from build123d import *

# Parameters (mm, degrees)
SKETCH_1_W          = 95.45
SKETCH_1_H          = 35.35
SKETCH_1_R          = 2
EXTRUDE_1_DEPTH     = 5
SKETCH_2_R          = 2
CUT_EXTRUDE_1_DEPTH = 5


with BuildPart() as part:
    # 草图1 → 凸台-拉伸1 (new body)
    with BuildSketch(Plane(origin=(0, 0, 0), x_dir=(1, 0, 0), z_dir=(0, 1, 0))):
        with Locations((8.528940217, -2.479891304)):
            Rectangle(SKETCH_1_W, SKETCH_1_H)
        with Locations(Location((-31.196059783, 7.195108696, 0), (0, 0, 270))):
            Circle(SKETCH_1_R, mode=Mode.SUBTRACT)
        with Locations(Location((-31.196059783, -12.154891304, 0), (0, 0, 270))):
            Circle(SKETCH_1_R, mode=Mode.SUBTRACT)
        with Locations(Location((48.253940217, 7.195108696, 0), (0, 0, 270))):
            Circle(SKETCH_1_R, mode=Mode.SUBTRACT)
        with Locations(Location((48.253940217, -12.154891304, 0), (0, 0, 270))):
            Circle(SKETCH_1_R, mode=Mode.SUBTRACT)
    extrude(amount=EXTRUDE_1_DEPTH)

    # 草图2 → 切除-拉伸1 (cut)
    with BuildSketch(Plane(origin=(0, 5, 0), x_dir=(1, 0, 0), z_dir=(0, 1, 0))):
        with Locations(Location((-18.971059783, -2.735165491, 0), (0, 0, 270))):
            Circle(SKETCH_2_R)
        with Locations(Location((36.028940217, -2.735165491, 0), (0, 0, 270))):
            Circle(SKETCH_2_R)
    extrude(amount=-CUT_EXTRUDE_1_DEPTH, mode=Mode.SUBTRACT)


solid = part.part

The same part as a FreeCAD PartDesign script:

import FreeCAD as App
import Part
import Sketcher
from FreeCAD import Vector


def add_polygon(sketch, points):
    """Adds a closed chain of lines whose ends are joined by coincident constraints."""
    first, n = sketch.GeometryCount, len(points)
    for a, b in zip(points, points[1:] + points[:1]):
        sketch.addGeometry(Part.LineSegment(App.Vector(*a, 0), App.Vector(*b, 0)), False)
    for i in range(n):
        sketch.addConstraint(Sketcher.Constraint("Coincident", first + i, 2, first + (i + 1) % n, 1))

doc = App.newDocument("Part")
params = doc.addObject("Spreadsheet::Sheet", "Params")
for row, (alias, value) in enumerate([
    ("sketch1_diameter", "4 mm"),
    ("sketch1_width", "95.45 mm"),
    ("sketch1_height", "35.35 mm"),
    ("pad1_length", "5 mm"),
    ("sketch2_diameter", "4 mm"),
    ("pocket1_length", "5 mm"),
], start=1):
    params.set(f"A{row}", alias)
    params.set(f"B{row}", "=" + value)
    params.setAlias(f"B{row}", alias)

body = doc.addObject("PartDesign::Body", "Body")

# Sketch on XZ plane
sketch1 = body.newObject("Sketcher::SketchObject", "Sketch")
sketch1.AttachmentSupport = (doc.getObject("XZ_Plane"), [""])
sketch1.MapMode = "FlatFace"
add_polygon(sketch1, [(-39.2, -15.2), (-39.2, 20.2), (56.3, 20.2), (56.3, -15.2)])  # lines 0-3
sketch1.addGeometry(Part.Circle(Vector(-31.2, 12.2, 0), Vector(0, 0, 1), 2), False)  # 4
sketch1.addGeometry(Part.Circle(Vector(48.3, 12.2, 0), Vector(0, 0, 1), 2), False)  # 5
sketch1.addGeometry(Part.Circle(Vector(-31.2, -7.2, 0), Vector(0, 0, 1), 2), False)  # 6
sketch1.addGeometry(Part.Circle(Vector(48.3, -7.2, 0), Vector(0, 0, 1), 2), False)  # 7
sketch1.addConstraint([
    Sketcher.Constraint("Vertical", 0),
    Sketcher.Constraint("Horizontal", 1),
    Sketcher.Constraint("Vertical", 2),
    Sketcher.Constraint("Horizontal", 3),
    Sketcher.Constraint("Equal", 4, 5),
    Sketcher.Constraint("Equal", 5, 6),
    Sketcher.Constraint("Equal", 6, 7),
    Sketcher.Constraint("Horizontal", 4, 3, 5, 3),
    Sketcher.Constraint("Horizontal", 6, 3, 7, 3),
    Sketcher.Constraint("Vertical", 4, 3, 6, 3),
    Sketcher.Constraint("Vertical", 5, 3, 7, 3),
    Sketcher.Constraint("Diameter", 4, 4.0),
    Sketcher.Constraint("DistanceX", 0, 2, 4, 3, 8.0),
    Sketcher.Constraint("DistanceY", 4, 3, 0, 2, 8.0),
    Sketcher.Constraint("DistanceX", 5, 3, 1, 2, 8.0),
    Sketcher.Constraint("DistanceY", 2, 2, 7, 3, 8.0),
    Sketcher.Constraint("DistanceX", 1, 1, 1, 2, 95.45),
    Sketcher.Constraint("DistanceY", 0, 1, 0, 2, 35.35),
    Sketcher.Constraint("DistanceX", 4, 3, -1, 1, 31.19606),
    Sketcher.Constraint("DistanceY", -1, 1, 4, 3, 12.154891),
])
sketch1.setExpression("Constraints[15]", "Params.sketch1_diameter")
sketch1.setExpression("Constraints[20]", "Params.sketch1_width")
sketch1.setExpression("Constraints[21]", "Params.sketch1_height")
pad1 = body.newObject("PartDesign::Pad", "Pad")
pad1.Profile = sketch1
pad1.setExpression("Length", "Params.pad1_length")
pad1.Reversed = True

# Sketch on XZ plane
sketch2 = body.newObject("Sketcher::SketchObject", "Sketch001")
sketch2.AttachmentSupport = (doc.getObject("XZ_Plane"), [""])
sketch2.MapMode = "FlatFace"
sketch2.AttachmentOffset = App.Placement(Vector(0, 0, -5), App.Rotation())
sketch2.addGeometry([
    Part.Circle(Vector(-19, 2.7, 0), Vector(0, 0, 1), 2),
    Part.Circle(Vector(36, 2.7, 0), Vector(0, 0, 1), 2),
], False)
sketch2.addConstraint([
    Sketcher.Constraint("Equal", 0, 1),
    Sketcher.Constraint("Horizontal", 0, 3, 1, 3),
    Sketcher.Constraint("Diameter", 0, 4.0),
    Sketcher.Constraint("DistanceX", 0, 3, 1, 3, 55.0),
    Sketcher.Constraint("DistanceX", 0, 3, -1, 1, 18.97106),
    Sketcher.Constraint("DistanceY", -1, 1, 0, 3, 2.735165),
])
sketch2.setExpression("Constraints[2]", "Params.sketch2_diameter")
pocket1 = body.newObject("PartDesign::Pocket", "Pocket")
pocket1.Profile = sketch2
pocket1.setExpression("Length", "Params.pocket1_length")
pocket1.Reversed = True

doc.recompute()
